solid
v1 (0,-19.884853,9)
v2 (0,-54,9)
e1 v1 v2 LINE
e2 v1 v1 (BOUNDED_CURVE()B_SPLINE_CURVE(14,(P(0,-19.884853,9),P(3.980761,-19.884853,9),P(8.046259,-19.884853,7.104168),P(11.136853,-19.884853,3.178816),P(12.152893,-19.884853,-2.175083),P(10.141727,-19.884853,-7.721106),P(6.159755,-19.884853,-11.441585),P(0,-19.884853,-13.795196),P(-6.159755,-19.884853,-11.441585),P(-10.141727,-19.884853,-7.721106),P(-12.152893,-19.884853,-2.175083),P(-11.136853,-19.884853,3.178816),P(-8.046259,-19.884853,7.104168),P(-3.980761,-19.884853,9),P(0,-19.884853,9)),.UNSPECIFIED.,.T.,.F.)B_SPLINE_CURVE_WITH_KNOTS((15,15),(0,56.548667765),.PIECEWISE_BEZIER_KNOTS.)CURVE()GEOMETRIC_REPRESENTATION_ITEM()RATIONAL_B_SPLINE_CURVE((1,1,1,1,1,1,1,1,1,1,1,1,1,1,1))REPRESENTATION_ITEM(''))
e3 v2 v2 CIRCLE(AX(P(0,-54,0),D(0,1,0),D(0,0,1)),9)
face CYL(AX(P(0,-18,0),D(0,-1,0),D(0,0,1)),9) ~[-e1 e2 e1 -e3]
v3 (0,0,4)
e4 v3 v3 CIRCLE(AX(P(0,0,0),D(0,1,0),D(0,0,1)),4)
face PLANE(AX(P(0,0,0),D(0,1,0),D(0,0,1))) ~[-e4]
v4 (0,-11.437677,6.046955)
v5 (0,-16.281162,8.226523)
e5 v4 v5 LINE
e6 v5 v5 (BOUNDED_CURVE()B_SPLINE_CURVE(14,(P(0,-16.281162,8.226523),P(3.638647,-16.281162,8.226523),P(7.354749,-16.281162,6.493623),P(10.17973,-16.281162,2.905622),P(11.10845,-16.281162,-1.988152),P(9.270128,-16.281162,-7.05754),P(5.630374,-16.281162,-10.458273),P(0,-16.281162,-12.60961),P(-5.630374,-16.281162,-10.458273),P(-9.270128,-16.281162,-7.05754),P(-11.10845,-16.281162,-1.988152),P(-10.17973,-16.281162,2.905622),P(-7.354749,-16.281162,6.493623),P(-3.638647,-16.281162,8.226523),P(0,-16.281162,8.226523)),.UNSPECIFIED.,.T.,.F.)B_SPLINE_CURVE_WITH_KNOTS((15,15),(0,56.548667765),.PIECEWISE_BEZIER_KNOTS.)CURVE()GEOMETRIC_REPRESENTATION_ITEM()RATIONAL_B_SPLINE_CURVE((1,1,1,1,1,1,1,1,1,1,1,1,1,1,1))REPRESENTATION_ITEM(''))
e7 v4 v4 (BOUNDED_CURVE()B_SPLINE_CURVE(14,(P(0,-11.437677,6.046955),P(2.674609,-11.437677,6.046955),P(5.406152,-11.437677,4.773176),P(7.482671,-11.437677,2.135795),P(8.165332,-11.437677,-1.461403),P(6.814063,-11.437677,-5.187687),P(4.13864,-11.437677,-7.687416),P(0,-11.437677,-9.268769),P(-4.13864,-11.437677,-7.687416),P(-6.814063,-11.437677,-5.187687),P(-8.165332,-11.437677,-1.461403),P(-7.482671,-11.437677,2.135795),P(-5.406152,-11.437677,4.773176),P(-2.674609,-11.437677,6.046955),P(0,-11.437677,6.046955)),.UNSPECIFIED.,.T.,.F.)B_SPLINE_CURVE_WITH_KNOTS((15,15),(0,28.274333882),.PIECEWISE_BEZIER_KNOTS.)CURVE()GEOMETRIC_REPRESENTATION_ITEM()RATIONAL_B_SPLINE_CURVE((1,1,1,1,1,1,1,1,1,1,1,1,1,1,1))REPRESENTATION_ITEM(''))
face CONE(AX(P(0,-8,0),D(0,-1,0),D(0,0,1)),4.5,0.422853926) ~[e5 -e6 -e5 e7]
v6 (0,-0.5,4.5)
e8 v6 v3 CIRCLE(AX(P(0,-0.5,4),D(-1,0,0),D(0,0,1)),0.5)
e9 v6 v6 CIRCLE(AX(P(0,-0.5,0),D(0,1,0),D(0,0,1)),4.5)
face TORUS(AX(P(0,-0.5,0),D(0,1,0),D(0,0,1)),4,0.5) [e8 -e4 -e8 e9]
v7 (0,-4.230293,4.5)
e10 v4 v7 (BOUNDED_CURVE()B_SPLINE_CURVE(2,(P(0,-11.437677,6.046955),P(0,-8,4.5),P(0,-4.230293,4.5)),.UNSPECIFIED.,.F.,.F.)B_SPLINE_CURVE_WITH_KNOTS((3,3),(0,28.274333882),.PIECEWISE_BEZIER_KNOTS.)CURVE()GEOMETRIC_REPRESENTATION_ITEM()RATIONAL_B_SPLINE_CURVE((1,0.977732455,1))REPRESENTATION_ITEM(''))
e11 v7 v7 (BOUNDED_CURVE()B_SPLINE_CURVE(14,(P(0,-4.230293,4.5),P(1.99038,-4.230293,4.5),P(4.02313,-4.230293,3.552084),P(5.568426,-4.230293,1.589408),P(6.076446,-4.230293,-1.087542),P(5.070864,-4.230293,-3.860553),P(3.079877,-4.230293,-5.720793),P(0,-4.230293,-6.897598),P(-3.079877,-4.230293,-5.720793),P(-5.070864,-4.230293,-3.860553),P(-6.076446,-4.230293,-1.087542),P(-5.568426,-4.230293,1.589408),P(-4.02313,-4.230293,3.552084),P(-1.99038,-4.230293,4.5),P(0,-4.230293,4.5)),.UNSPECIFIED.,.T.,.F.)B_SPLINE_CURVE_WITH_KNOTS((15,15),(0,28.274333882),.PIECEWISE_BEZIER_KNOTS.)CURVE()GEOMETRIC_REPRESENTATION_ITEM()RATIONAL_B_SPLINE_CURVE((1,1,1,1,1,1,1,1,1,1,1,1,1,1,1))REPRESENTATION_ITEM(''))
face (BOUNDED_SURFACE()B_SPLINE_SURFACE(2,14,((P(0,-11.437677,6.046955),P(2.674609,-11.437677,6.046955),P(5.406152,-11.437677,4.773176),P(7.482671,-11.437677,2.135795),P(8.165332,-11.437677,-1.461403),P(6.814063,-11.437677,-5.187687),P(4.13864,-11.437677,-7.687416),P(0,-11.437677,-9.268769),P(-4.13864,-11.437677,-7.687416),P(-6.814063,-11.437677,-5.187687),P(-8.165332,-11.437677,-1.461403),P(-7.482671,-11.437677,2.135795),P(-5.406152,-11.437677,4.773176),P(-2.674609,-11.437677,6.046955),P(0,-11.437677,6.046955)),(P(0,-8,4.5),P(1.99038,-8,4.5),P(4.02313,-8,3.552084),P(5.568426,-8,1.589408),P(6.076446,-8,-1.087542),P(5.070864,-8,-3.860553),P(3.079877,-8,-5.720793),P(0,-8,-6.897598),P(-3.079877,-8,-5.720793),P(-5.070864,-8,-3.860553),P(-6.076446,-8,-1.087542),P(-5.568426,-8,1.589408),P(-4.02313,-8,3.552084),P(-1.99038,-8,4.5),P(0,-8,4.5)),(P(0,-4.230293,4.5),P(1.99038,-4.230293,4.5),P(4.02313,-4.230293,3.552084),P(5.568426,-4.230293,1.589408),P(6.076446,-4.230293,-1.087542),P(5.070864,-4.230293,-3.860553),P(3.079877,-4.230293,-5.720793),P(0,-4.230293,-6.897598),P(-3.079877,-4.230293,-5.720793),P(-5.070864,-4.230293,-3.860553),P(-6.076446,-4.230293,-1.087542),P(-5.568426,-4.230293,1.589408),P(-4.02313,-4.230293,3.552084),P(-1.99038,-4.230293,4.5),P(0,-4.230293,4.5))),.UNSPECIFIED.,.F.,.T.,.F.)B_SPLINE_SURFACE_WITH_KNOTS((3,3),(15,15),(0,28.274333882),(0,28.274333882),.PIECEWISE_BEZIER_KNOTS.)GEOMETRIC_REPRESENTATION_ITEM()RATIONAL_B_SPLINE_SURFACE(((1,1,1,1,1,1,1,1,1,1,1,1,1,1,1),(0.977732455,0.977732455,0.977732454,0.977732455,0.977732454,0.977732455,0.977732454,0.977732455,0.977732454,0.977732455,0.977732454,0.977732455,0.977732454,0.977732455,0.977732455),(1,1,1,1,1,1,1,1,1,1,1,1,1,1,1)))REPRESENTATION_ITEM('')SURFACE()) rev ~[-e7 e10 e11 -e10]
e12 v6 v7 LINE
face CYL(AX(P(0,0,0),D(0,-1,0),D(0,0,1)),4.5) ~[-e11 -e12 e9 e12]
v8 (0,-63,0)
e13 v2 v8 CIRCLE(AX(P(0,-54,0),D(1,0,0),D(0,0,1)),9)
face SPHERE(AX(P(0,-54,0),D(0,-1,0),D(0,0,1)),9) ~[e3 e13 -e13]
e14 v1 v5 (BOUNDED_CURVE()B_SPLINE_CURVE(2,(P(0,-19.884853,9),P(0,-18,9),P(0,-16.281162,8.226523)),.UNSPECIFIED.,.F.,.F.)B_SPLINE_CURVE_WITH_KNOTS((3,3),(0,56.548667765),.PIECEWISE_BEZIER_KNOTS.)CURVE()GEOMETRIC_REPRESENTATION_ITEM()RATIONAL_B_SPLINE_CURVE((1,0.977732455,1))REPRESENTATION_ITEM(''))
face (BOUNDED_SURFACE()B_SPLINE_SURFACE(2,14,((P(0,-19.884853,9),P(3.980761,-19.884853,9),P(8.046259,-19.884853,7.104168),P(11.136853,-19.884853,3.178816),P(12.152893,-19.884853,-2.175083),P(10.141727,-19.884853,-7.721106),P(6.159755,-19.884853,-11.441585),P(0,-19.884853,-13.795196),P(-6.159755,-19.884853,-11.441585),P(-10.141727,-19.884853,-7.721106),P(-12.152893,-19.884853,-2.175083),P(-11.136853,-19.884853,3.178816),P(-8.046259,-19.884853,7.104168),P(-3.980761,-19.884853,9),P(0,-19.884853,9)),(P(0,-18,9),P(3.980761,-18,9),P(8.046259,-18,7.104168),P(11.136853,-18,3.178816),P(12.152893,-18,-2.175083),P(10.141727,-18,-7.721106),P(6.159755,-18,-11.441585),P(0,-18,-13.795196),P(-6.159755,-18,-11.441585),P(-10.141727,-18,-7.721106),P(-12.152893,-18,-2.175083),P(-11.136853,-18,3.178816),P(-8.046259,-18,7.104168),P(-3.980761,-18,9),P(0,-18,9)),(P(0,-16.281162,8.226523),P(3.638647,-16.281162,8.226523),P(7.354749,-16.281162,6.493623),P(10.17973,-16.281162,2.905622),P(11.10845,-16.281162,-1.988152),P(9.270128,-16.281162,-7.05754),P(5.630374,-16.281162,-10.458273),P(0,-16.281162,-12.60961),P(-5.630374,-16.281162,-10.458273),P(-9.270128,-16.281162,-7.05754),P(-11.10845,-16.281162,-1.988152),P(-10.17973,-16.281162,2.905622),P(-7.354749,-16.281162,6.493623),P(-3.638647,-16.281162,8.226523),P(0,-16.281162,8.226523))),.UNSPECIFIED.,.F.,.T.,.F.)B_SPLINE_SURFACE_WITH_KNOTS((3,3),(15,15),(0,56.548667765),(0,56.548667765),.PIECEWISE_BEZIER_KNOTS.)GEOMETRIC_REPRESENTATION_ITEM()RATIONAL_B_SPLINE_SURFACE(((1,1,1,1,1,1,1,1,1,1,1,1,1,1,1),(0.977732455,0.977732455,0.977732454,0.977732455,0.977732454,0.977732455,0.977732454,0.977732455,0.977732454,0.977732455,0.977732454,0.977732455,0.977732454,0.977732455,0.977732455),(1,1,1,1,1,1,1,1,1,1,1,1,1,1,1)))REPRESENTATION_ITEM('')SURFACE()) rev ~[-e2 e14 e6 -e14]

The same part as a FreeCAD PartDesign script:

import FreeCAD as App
import Part
import Sketcher

V = App.Vector


def edges_at(feature, points):
    """Names of the edges that pass closest to the given points."""
    edges = feature.Shape.Edges
    near = lambda p: min(range(len(edges)), key=lambda i: edges[i].distToShape(Part.Vertex(*p))[0])
    return sorted({f"Edge{near(p) + 1}" for p in points})


def add_polygon(sketch, points):
    """Adds a closed chain of lines whose ends are joined by coincident constraints."""
    first, n = sketch.GeometryCount, len(points)
    for a, b in zip(points, points[1:] + points[:1]):
        sketch.addGeometry(Part.LineSegment(App.Vector(*a, 0), App.Vector(*b, 0)), False)
    for i in range(n):
        sketch.addConstraint(Sketcher.Constraint("Coincident", first + i, 2, first + (i + 1) % n, 1))

doc = App.newDocument("Part")
body = doc.addObject("PartDesign::Body", "Body")

# Sketch on YZ plane
sketch1 = body.newObject("Sketcher::SketchObject", "Sketch")
sketch1.AttachmentSupport = (doc.getObject("YZ_Plane"), [""])
sketch1.MapMode = "FlatFace"
add_polygon(sketch1, [(-63, 0), (0, 0), (0, 4.5), (-8, 4.5), (-18, 9), (-63, 9)])  # lines 0-5
sketch1.addConstraint(Sketcher.Constraint("Horizontal", 0))
sketch1.addConstraint(Sketcher.Constraint("Vertical", 1))
sketch1.addConstraint(Sketcher.Constraint("Horizontal", 2))
sketch1.addConstraint(Sketcher.Constraint("Horizontal", 4))
sketch1.addConstraint(Sketcher.Constraint("Vertical", 5))
sketch1.addConstraint(Sketcher.Constraint("Coincident", 0, 2, -1, 1))
sketch1.addConstraint(Sketcher.Constraint("DistanceX", 0, 1, 0, 2, 63.0))
sketch1.addConstraint(Sketcher.Constraint("DistanceX", 2, 2, 2, 1, 8.0))
sketch1.addConstraint(Sketcher.Constraint("DistanceX", 4, 2, 4, 1, 45.0))
sketch1.addConstraint(Sketcher.Constraint("DistanceY", 5, 2, 5, 1, 9.0))
sketch1.addConstraint(Sketcher.Constraint("DistanceY", 1, 1, 1, 2, 4.5))
revolution = body.newObject("PartDesign::Revolution", "Revolution")
revolution.Profile = sketch1
revolution.ReferenceAxis = (sketch1, ["H_Axis"])
revolution.Angle = 360
doc.recompute()

fillet = body.newObject("PartDesign::Fillet", "Fillet")
fillet.Base = (revolution, edges_at(revolution, [(0, -63, -9)]))
fillet.Radius = 9
doc.recompute()

fillet2 = body.newObject("PartDesign::Fillet", "Fillet001")
fillet2.Base = (fillet, edges_at(fillet, [(0, -18, -9)]))
fillet2.Radius = 8.781681
doc.recompute()

fillet3 = body.newObject("PartDesign::Fillet", "Fillet002")
fillet3.Base = (fillet2, edges_at(fillet2, [(0, -12.141, 6.363), (0, -16.281, -8.227), (0, -8, -4.5)]))
fillet3.Radius = 17.563363
doc.recompute()

fillet4 = body.newObject("PartDesign::Fillet", "Fillet003")
fillet4.Base = (fillet3, edges_at(fillet3, [(0, 0, -4.5)]))
fillet4.Radius = 0.5

doc.recompute()
